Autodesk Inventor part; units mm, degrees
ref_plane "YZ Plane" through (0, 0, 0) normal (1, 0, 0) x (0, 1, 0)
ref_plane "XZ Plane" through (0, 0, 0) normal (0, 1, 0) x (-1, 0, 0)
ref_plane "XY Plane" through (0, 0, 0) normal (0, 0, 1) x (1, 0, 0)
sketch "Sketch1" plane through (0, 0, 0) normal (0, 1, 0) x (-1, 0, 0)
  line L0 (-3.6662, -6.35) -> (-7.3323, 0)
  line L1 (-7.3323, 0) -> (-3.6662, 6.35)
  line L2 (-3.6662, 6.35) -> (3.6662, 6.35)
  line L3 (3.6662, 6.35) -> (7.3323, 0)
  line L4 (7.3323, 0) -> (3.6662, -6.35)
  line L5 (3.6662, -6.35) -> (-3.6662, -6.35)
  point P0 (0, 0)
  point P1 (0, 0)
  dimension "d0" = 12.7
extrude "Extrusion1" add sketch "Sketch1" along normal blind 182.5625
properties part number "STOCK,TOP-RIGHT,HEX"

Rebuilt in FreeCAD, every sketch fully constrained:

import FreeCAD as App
import Part
import Sketcher
Q = App.Units.Quantity

doc = App.newDocument("Part")
body = doc.addObject("PartDesign::Body", "Body")

sketch1 = body.newObject("Sketcher::SketchObject", "Sketch")
sketch1.AttachmentSupport = (doc.getObject("XZ_Plane"), [""])
sketch1.MapMode = "FlatFace"
sketch1.addGeometry(Part.LineSegment(App.Vector(7.3323, 0, 0), App.Vector(3.6662, -6.35, 0)), False)
sketch1.addGeometry(Part.LineSegment(App.Vector(3.6662, -6.35, 0), App.Vector(-3.6662, -6.35, 0)), False)
sketch1.addGeometry(Part.LineSegment(App.Vector(-3.6662, -6.35, 0), App.Vector(-7.3323, 0, 0)), False)
sketch1.addGeometry(Part.LineSegment(App.Vector(-7.3323, 0, 0), App.Vector(-3.6662, 6.35, 0)), False)
sketch1.addGeometry(Part.LineSegment(App.Vector(-3.6662, 6.35, 0), App.Vector(3.6662, 6.35, 0)), False)
sketch1.addGeometry(Part.LineSegment(App.Vector(3.6662, 6.35, 0), App.Vector(7.3323, 0, 0)), False)
sketch1.addConstraint(Sketcher.Constraint("Coincident", 0, 2, 1, 1))
sketch1.addConstraint(Sketcher.Constraint("Coincident", 1, 2, 2, 1))
sketch1.addConstraint(Sketcher.Constraint("Coincident", 2, 2, 3, 1))
sketch1.addConstraint(Sketcher.Constraint("Coincident", 3, 2, 4, 1))
sketch1.addConstraint(Sketcher.Constraint("Coincident", 4, 2, 5, 1))
sketch1.addConstraint(Sketcher.Constraint("Coincident", 5, 2, 0, 1))
sketch1.addConstraint(Sketcher.Constraint("Horizontal", 1))
sketch1.addConstraint(Sketcher.Constraint("Horizontal", 4))
sketch1.addConstraint(Sketcher.Constraint("Symmetric", 0, 2, 3, 2, -1, 1))
sketch1.addConstraint(Sketcher.Constraint("Symmetric", 2, 2, 5, 2, -1, 1))
sketch1.addConstraint(Sketcher.Constraint("PointOnObject", 2, 2, -1))
sketch1.addConstraint(Sketcher.Constraint("Parallel", 2, 5))
sketch1.addConstraint(Sketcher.Constraint("Vertical", 1, 2, 3, 2))
sketch1.addConstraint(Sketcher.Constraint("DistanceY", 1, 2, 3, 2, Q("0.5 in")))
sketch1.addConstraint(Sketcher.Constraint("Angle", 0, Q("-119.9995 deg")))
sketch1.addConstraint(Sketcher.Constraint("DistanceX", 2, 2, 0, 2, Q("0.433 in")))
pad1 = body.newObject("PartDesign::Pad", "Pad")
pad1.Profile = sketch1
pad1.Length = Q("7.1875 in")
pad1.Reversed = True

doc.recompute()
